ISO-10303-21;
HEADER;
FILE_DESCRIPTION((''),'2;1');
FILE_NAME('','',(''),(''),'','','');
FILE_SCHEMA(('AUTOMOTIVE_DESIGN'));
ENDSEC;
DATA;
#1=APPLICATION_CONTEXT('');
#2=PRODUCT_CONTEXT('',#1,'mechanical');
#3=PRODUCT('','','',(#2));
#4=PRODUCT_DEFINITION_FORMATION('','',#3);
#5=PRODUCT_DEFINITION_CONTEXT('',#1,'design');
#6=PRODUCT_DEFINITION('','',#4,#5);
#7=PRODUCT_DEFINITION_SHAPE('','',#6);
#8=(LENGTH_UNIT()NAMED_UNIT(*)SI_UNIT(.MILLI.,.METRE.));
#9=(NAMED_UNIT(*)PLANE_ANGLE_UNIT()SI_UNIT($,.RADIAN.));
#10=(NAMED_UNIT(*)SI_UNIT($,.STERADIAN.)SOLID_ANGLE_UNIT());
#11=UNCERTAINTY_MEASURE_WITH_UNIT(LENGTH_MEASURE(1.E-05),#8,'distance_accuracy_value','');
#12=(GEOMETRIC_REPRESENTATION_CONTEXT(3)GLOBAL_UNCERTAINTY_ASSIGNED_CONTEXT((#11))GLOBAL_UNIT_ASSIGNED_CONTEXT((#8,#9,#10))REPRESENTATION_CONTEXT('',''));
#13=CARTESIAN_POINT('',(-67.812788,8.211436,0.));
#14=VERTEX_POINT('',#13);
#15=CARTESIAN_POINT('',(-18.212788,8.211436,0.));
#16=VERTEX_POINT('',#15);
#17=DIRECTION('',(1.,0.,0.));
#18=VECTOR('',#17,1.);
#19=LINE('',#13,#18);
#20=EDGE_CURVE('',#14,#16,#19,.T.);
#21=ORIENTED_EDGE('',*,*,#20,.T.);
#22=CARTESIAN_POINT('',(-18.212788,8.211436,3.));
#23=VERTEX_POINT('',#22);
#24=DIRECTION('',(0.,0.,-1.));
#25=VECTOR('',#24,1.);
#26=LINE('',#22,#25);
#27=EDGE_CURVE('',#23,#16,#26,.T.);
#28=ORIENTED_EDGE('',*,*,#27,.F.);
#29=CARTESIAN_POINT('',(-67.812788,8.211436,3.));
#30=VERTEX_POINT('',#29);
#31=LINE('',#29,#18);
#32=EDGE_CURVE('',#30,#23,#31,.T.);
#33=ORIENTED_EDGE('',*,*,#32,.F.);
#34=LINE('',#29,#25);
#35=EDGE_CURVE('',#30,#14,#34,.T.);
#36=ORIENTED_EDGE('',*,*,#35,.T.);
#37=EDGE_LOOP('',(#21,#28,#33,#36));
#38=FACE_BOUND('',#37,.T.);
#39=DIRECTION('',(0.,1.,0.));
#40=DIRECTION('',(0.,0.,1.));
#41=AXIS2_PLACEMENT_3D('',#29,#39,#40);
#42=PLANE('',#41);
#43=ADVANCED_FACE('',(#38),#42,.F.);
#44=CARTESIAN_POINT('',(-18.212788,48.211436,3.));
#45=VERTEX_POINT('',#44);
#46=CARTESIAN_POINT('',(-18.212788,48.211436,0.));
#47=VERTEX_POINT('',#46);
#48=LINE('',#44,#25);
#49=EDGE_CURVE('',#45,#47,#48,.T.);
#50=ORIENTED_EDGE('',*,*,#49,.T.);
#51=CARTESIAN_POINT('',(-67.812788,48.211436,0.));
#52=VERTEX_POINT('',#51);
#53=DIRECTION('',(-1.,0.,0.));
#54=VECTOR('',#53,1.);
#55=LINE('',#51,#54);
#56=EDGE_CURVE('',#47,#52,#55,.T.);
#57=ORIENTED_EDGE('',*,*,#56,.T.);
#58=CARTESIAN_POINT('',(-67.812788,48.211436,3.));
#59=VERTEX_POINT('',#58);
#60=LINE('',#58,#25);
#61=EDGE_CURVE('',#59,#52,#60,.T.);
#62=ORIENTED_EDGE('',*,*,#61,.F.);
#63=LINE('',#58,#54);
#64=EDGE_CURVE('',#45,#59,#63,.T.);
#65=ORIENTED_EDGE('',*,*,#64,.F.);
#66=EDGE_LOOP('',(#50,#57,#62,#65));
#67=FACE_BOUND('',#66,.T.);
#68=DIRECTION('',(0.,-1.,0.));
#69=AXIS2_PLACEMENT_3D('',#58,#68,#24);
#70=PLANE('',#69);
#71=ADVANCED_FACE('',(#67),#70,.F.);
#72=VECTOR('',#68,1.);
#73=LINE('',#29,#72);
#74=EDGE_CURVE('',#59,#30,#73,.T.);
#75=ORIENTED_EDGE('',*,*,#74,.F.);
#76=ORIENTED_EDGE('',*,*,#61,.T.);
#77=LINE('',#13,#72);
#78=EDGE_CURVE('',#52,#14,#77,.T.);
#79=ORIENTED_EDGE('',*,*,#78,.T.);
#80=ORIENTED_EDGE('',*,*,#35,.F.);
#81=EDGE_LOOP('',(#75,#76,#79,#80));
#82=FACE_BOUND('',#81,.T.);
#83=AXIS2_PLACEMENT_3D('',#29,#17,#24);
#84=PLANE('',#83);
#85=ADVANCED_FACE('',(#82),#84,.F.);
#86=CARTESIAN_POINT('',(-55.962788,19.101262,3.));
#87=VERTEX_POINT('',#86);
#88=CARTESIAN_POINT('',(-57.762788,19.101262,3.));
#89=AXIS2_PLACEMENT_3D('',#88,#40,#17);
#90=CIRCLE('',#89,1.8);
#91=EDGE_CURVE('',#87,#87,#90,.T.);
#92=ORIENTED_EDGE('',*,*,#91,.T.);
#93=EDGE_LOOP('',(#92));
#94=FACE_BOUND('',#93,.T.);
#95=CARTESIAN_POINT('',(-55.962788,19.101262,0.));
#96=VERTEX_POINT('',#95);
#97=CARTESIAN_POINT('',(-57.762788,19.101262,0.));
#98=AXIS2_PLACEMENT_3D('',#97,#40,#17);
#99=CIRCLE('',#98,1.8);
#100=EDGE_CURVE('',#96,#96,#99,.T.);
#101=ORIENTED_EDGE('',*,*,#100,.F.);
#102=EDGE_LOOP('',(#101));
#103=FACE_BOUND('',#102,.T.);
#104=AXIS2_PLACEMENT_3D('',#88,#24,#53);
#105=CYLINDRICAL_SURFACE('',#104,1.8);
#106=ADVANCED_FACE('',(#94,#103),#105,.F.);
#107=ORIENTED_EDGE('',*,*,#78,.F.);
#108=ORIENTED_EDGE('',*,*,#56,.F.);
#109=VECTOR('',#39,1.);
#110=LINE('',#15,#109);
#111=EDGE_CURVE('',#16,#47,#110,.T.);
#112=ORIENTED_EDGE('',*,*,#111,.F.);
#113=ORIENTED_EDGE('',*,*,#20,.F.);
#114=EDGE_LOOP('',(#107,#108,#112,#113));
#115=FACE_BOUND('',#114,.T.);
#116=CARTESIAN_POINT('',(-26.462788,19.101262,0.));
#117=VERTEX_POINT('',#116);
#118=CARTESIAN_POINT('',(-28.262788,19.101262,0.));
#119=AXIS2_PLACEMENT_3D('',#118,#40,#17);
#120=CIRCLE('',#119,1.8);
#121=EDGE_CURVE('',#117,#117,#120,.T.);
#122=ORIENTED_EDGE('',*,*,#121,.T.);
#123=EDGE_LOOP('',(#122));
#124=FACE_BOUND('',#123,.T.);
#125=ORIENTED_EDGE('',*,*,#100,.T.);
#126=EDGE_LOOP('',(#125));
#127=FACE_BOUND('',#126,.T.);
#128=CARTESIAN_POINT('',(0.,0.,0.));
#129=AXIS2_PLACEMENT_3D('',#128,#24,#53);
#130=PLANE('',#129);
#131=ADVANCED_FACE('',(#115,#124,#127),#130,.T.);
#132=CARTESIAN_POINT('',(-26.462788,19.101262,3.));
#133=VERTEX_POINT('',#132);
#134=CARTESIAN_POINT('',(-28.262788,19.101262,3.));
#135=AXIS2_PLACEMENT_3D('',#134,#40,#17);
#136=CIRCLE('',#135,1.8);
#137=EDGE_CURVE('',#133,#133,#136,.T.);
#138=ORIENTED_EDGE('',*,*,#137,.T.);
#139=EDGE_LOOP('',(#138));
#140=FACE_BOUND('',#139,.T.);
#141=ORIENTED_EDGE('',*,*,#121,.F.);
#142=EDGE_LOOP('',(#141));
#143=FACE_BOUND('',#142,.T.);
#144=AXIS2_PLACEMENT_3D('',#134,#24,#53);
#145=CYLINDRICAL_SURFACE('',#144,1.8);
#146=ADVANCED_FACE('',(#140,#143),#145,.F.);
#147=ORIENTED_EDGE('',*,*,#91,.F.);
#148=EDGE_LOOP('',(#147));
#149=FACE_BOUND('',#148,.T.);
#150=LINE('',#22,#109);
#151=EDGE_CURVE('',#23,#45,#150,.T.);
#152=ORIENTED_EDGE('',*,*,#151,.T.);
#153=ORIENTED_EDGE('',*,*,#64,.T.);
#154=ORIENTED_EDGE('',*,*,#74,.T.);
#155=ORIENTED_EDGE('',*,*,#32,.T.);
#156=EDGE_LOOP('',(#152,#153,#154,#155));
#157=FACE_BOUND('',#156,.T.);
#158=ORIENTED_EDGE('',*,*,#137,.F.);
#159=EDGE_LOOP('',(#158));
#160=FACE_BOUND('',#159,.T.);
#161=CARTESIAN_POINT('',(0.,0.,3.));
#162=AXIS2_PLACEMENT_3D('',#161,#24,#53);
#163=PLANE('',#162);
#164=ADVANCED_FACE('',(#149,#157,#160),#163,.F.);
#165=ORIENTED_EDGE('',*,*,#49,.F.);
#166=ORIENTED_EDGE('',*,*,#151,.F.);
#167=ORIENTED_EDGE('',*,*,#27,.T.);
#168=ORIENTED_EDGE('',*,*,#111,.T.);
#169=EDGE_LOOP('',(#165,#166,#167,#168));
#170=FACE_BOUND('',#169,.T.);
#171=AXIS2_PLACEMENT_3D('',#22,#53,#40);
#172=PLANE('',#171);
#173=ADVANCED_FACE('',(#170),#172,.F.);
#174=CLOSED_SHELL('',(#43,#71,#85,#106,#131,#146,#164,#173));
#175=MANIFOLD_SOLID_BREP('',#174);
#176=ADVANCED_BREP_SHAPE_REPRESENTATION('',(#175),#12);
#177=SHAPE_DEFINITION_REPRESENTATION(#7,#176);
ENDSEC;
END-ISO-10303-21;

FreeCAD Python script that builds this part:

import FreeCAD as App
import Part
import Sketcher
Q = App.Units.Quantity


def add_polygon(sketch, points):
    """Adds a closed chain of lines whose ends are joined by coincident constraints."""
    first, n = sketch.GeometryCount, len(points)
    for a, b in zip(points, points[1:] + points[:1]):
        sketch.addGeometry(Part.LineSegment(App.Vector(*a, 0), App.Vector(*b, 0)), False)
    for i in range(n):
        sketch.addConstraint(Sketcher.Constraint("Coincident", first + i, 2, first + (i + 1) % n, 1))

doc = App.newDocument("Part")
params = doc.addObject("Spreadsheet::Sheet", "Params")
for row, (alias, value) in enumerate([
    ("sketch1_diameter", "3.6 mm"),
    ("sketch1_height", "40 mm"),
    ("sketch1_width", "49.6 mm"),
    ("pad1_length", "3 mm"),
], start=1):
    params.set(f"A{row}", alias)
    params.set(f"B{row}", "=" + value)
    params.setAlias(f"B{row}", alias)

body = doc.addObject("PartDesign::Body", "Body")

sketch1 = body.newObject("Sketcher::SketchObject", "Sketch")
sketch1.AttachmentSupport = (doc.getObject("XY_Plane"), [""])
sketch1.MapMode = "FlatFace"
add_polygon(sketch1, [(-67.8, 48.2), (-67.8, 8.2), (-18.2, 8.2), (-18.2, 48.2)])
sketch1.addGeometry(Part.Circle(App.Vector(-57.8, 19.1, 0), App.Vector(0, 0, 1), 1.8), False)
sketch1.addGeometry(Part.Circle(App.Vector(-28.3, 19.1, 0), App.Vector(0, 0, 1), 1.8), False)
sketch1.addConstraint([
    Sketcher.Constraint("Vertical", 0),
    Sketcher.Constraint("Horizontal", 1),
    Sketcher.Constraint("Vertical", 2),
    Sketcher.Constraint("Horizontal", 3),
    Sketcher.Constraint("Equal", 4, 5),
    Sketcher.Constraint("Horizontal", 4, 3, 5, 3),
    Sketcher.Constraint("Diameter", 4, Q("3.6 mm")),
    Sketcher.Constraint("DistanceY", 0, 2, 0, 1, Q("40 mm")),
    Sketcher.Constraint("DistanceX", 1, 1, 1, 2, Q("49.6 mm")),
    Sketcher.Constraint("DistanceX", 4, 3, 5, 3, Q("29.5 mm")),
    Sketcher.Constraint("DistanceX", 0, 2, 4, 3, Q("10.05 mm")),
    Sketcher.Constraint("DistanceX", 4, 3, -1, 1, Q("57.762788 mm")),
    Sketcher.Constraint("DistanceY", -1, 1, 4, 3, Q("19.101262 mm")),
    Sketcher.Constraint("DistanceY", -1, 1, 0, 2, Q("8.211436 mm")),
])
sketch1.setExpression("Constraints[10]", "Params.sketch1_diameter")
sketch1.setExpression("Constraints[11]", "Params.sketch1_height")
sketch1.setExpression("Constraints[12]", "Params.sketch1_width")
pad1 = body.newObject("PartDesign::Pad", "Pad")
pad1.Profile = sketch1
pad1.setExpression("Length", "Params.pad1_length")

doc.recompute()
